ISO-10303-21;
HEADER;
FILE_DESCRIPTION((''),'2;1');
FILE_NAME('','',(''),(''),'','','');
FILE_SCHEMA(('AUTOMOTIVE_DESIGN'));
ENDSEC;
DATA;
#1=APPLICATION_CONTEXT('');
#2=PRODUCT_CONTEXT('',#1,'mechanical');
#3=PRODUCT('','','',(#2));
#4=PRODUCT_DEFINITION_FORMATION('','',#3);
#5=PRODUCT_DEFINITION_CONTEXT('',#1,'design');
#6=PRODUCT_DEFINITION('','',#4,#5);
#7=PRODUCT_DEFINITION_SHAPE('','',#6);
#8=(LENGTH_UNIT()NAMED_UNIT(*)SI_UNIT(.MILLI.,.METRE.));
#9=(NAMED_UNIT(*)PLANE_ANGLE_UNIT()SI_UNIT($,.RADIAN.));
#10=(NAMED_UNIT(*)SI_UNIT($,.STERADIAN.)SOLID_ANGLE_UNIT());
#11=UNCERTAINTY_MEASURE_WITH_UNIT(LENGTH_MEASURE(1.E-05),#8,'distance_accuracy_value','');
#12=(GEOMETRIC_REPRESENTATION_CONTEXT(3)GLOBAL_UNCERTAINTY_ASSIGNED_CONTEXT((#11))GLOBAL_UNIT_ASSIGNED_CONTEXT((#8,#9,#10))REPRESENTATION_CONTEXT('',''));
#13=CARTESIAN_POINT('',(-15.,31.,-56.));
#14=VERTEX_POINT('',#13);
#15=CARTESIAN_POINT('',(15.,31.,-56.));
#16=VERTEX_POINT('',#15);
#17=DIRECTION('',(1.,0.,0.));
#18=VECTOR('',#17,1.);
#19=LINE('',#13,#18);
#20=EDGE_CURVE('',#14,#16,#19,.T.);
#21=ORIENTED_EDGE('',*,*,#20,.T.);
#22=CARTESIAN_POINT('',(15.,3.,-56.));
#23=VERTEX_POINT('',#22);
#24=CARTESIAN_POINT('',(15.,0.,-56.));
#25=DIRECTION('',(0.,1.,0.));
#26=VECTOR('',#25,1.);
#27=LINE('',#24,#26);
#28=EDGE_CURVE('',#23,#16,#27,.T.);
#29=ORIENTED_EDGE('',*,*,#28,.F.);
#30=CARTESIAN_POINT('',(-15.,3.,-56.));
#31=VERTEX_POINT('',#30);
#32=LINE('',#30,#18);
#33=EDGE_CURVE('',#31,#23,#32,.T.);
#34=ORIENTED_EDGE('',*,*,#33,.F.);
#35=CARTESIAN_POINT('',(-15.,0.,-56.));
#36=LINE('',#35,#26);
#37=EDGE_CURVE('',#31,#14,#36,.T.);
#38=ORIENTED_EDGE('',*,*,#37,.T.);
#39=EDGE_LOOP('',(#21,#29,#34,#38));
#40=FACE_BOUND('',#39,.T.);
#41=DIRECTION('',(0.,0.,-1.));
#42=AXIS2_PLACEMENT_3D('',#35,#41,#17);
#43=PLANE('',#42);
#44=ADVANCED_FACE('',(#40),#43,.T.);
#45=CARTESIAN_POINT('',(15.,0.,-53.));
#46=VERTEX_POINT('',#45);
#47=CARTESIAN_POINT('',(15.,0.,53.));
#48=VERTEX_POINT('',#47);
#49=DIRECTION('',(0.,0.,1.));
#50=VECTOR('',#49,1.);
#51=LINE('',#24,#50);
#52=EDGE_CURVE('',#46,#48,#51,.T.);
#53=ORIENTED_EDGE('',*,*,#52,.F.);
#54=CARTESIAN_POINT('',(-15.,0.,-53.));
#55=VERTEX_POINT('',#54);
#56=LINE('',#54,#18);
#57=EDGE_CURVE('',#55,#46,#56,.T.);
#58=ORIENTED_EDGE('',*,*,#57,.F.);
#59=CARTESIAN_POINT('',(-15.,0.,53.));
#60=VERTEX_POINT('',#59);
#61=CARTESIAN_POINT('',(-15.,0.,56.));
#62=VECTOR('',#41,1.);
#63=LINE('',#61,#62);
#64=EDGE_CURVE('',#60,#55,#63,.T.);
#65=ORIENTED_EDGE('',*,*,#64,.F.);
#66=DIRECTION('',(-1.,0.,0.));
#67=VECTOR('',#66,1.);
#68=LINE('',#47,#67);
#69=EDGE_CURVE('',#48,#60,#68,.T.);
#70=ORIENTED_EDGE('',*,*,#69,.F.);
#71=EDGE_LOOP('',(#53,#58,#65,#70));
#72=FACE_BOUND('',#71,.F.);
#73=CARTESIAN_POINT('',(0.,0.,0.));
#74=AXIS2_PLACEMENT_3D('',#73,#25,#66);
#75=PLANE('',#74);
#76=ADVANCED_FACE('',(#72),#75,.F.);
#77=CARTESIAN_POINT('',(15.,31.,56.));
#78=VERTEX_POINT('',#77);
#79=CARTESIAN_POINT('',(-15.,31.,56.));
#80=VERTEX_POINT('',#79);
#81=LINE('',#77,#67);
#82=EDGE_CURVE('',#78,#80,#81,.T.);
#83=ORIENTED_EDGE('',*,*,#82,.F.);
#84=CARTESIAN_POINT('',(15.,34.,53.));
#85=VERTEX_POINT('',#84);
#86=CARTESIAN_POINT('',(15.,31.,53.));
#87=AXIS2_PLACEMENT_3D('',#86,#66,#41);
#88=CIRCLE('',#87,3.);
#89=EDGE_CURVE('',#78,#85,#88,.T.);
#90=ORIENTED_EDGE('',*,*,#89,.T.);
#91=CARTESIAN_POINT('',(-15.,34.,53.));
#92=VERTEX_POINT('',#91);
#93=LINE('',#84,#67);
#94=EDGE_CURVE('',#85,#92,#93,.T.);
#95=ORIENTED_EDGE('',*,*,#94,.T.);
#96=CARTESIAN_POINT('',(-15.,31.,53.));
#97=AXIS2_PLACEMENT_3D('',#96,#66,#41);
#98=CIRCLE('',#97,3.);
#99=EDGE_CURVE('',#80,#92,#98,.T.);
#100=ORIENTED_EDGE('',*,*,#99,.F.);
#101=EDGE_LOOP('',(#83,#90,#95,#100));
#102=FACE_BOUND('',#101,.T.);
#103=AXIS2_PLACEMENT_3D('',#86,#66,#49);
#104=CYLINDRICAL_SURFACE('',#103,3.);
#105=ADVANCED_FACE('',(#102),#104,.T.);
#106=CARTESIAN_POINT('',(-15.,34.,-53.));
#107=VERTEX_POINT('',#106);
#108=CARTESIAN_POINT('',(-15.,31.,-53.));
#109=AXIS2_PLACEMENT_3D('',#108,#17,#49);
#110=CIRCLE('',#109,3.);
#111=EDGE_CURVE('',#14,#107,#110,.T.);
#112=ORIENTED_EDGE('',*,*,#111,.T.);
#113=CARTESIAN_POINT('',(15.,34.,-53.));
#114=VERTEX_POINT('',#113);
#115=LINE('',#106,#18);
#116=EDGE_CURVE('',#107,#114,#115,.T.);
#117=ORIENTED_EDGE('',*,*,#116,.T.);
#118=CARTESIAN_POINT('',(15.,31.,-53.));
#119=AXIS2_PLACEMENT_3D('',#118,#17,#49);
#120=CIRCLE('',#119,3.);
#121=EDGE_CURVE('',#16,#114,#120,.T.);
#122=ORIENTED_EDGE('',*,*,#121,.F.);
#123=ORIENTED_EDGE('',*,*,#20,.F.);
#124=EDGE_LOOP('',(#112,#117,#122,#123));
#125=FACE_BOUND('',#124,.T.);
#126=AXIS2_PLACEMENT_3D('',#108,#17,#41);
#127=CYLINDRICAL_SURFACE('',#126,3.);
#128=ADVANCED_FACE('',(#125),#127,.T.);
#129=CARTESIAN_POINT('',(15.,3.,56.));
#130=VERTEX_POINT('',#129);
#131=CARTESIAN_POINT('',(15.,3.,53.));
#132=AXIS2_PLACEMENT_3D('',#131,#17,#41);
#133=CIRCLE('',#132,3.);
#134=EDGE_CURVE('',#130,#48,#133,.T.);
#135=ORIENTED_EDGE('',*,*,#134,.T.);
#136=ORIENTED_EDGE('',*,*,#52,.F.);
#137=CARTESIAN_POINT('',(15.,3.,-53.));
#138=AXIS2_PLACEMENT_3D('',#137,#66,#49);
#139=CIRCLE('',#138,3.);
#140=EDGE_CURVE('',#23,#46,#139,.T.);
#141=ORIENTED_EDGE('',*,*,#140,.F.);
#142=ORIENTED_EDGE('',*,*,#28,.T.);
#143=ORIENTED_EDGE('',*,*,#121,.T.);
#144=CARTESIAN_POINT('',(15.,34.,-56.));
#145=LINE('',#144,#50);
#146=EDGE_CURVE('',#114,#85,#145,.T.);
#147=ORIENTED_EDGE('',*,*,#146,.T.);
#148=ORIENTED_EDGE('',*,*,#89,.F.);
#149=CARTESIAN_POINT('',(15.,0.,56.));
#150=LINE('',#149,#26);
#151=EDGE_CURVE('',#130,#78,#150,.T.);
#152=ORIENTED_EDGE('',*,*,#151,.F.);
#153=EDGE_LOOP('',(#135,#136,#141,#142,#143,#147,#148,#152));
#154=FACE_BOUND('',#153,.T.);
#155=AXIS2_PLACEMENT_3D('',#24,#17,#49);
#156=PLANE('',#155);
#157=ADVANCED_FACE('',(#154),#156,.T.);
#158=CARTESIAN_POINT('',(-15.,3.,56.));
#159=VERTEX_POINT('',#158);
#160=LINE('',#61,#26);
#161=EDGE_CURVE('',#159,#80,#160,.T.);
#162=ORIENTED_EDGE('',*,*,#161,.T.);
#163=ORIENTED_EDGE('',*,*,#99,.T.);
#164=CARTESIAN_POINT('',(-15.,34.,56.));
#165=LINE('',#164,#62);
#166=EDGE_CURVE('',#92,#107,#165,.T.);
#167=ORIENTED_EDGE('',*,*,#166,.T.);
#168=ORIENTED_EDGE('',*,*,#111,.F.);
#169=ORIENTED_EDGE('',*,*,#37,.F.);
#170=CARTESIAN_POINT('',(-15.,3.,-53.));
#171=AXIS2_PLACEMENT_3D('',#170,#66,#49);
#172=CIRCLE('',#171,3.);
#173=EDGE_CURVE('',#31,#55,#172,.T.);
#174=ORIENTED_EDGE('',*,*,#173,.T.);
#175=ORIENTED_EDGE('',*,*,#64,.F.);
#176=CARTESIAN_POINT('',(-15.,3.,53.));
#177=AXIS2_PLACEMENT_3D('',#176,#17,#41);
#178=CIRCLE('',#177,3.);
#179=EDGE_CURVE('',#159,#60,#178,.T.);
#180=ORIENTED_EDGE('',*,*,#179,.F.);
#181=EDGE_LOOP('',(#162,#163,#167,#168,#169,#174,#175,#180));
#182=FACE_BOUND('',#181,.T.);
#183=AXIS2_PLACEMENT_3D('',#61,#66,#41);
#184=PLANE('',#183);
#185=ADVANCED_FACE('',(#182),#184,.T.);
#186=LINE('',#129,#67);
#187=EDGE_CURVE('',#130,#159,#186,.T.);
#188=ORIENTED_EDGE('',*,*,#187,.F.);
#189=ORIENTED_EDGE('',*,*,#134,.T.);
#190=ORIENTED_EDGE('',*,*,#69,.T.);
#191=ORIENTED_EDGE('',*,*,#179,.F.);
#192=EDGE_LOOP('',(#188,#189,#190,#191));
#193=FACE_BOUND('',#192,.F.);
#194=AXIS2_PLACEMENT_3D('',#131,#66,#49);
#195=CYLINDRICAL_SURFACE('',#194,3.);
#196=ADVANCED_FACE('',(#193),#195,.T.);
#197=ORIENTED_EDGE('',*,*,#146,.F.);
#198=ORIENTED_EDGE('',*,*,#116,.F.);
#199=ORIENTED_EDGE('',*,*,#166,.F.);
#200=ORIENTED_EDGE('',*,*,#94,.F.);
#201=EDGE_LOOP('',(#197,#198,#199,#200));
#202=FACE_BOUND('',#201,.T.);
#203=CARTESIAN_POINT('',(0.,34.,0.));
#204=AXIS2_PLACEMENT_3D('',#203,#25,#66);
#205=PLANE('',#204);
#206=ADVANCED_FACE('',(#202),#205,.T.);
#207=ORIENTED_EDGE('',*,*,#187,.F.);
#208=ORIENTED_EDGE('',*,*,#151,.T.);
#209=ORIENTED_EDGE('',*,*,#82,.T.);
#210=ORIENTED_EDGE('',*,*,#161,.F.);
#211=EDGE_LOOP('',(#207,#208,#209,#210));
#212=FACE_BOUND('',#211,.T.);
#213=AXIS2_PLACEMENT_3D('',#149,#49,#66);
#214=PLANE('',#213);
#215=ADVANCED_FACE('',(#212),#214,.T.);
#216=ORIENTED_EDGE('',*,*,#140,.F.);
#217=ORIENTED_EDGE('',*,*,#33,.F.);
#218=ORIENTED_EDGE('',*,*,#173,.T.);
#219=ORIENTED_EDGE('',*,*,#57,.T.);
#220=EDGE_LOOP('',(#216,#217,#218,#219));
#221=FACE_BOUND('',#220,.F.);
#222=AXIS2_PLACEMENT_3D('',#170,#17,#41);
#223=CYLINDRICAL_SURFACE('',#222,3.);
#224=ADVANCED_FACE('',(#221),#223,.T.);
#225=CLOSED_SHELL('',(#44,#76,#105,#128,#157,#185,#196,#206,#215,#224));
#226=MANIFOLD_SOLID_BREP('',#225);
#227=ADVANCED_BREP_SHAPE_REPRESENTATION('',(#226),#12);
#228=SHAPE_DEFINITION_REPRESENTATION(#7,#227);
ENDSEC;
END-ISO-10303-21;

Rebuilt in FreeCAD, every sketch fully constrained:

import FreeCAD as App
import Part
import Sketcher
Q = App.Units.Quantity


def edges_at(feature, points):
    """Names of the edges that pass closest to the given points."""
    edges = feature.Shape.Edges
    near = lambda p: min(range(len(edges)), key=lambda i: edges[i].distToShape(Part.Vertex(*p))[0])
    return sorted({f"Edge{near(p) + 1}" for p in points})

doc = App.newDocument("Part")
body = doc.addObject("PartDesign::Body", "Body")

# Sketch on XZ plane
sketch1 = body.newObject("Sketcher::SketchObject", "Sketch")
sketch1.AttachmentSupport = (doc.getObject("XZ_Plane"), [""])
sketch1.MapMode = "FlatFace"
sketch1.addGeometry([
    Part.LineSegment(App.Vector(-15, 56, 0), App.Vector(15, 56, 0)),
    Part.LineSegment(App.Vector(15, 56, 0), App.Vector(15, -56, 0)),
    Part.LineSegment(App.Vector(15, -56, 0), App.Vector(-15, -56, 0)),
    Part.LineSegment(App.Vector(-15, -56, 0), App.Vector(-15, 56, 0)),
], False)
sketch1.addConstraint([
    Sketcher.Constraint("Coincident", 0, 2, 1, 1),
    Sketcher.Constraint("Coincident", 1, 2, 2, 1),
    Sketcher.Constraint("Coincident", 2, 2, 3, 1),
    Sketcher.Constraint("Coincident", 3, 2, 0, 1),
    Sketcher.Constraint("Horizontal", 0),
    Sketcher.Constraint("Vertical", 1),
    Sketcher.Constraint("Horizontal", 2),
    Sketcher.Constraint("Vertical", 3),
    Sketcher.Constraint("Symmetric", 0, 2, 2, 2, -1, 1),
    Sketcher.Constraint("DistanceX", 0, 1, 0, 2, Q("30 mm")),
    Sketcher.Constraint("DistanceY", 1, 2, 1, 1, Q("112 mm")),
])
pad1 = body.newObject("PartDesign::Pad", "Pad")
pad1.Profile = sketch1
pad1.Length = 34
pad1.Reversed = True
doc.recompute()

fillet = body.newObject("PartDesign::Fillet", "Fillet")
fillet.Base = (pad1, edges_at(pad1, [
    (0, 34, -56),
    (0, 0, -56),
    (0, 34, 56),
    (0, 0, 56),
]))
fillet.Radius = 3

doc.recompute()
